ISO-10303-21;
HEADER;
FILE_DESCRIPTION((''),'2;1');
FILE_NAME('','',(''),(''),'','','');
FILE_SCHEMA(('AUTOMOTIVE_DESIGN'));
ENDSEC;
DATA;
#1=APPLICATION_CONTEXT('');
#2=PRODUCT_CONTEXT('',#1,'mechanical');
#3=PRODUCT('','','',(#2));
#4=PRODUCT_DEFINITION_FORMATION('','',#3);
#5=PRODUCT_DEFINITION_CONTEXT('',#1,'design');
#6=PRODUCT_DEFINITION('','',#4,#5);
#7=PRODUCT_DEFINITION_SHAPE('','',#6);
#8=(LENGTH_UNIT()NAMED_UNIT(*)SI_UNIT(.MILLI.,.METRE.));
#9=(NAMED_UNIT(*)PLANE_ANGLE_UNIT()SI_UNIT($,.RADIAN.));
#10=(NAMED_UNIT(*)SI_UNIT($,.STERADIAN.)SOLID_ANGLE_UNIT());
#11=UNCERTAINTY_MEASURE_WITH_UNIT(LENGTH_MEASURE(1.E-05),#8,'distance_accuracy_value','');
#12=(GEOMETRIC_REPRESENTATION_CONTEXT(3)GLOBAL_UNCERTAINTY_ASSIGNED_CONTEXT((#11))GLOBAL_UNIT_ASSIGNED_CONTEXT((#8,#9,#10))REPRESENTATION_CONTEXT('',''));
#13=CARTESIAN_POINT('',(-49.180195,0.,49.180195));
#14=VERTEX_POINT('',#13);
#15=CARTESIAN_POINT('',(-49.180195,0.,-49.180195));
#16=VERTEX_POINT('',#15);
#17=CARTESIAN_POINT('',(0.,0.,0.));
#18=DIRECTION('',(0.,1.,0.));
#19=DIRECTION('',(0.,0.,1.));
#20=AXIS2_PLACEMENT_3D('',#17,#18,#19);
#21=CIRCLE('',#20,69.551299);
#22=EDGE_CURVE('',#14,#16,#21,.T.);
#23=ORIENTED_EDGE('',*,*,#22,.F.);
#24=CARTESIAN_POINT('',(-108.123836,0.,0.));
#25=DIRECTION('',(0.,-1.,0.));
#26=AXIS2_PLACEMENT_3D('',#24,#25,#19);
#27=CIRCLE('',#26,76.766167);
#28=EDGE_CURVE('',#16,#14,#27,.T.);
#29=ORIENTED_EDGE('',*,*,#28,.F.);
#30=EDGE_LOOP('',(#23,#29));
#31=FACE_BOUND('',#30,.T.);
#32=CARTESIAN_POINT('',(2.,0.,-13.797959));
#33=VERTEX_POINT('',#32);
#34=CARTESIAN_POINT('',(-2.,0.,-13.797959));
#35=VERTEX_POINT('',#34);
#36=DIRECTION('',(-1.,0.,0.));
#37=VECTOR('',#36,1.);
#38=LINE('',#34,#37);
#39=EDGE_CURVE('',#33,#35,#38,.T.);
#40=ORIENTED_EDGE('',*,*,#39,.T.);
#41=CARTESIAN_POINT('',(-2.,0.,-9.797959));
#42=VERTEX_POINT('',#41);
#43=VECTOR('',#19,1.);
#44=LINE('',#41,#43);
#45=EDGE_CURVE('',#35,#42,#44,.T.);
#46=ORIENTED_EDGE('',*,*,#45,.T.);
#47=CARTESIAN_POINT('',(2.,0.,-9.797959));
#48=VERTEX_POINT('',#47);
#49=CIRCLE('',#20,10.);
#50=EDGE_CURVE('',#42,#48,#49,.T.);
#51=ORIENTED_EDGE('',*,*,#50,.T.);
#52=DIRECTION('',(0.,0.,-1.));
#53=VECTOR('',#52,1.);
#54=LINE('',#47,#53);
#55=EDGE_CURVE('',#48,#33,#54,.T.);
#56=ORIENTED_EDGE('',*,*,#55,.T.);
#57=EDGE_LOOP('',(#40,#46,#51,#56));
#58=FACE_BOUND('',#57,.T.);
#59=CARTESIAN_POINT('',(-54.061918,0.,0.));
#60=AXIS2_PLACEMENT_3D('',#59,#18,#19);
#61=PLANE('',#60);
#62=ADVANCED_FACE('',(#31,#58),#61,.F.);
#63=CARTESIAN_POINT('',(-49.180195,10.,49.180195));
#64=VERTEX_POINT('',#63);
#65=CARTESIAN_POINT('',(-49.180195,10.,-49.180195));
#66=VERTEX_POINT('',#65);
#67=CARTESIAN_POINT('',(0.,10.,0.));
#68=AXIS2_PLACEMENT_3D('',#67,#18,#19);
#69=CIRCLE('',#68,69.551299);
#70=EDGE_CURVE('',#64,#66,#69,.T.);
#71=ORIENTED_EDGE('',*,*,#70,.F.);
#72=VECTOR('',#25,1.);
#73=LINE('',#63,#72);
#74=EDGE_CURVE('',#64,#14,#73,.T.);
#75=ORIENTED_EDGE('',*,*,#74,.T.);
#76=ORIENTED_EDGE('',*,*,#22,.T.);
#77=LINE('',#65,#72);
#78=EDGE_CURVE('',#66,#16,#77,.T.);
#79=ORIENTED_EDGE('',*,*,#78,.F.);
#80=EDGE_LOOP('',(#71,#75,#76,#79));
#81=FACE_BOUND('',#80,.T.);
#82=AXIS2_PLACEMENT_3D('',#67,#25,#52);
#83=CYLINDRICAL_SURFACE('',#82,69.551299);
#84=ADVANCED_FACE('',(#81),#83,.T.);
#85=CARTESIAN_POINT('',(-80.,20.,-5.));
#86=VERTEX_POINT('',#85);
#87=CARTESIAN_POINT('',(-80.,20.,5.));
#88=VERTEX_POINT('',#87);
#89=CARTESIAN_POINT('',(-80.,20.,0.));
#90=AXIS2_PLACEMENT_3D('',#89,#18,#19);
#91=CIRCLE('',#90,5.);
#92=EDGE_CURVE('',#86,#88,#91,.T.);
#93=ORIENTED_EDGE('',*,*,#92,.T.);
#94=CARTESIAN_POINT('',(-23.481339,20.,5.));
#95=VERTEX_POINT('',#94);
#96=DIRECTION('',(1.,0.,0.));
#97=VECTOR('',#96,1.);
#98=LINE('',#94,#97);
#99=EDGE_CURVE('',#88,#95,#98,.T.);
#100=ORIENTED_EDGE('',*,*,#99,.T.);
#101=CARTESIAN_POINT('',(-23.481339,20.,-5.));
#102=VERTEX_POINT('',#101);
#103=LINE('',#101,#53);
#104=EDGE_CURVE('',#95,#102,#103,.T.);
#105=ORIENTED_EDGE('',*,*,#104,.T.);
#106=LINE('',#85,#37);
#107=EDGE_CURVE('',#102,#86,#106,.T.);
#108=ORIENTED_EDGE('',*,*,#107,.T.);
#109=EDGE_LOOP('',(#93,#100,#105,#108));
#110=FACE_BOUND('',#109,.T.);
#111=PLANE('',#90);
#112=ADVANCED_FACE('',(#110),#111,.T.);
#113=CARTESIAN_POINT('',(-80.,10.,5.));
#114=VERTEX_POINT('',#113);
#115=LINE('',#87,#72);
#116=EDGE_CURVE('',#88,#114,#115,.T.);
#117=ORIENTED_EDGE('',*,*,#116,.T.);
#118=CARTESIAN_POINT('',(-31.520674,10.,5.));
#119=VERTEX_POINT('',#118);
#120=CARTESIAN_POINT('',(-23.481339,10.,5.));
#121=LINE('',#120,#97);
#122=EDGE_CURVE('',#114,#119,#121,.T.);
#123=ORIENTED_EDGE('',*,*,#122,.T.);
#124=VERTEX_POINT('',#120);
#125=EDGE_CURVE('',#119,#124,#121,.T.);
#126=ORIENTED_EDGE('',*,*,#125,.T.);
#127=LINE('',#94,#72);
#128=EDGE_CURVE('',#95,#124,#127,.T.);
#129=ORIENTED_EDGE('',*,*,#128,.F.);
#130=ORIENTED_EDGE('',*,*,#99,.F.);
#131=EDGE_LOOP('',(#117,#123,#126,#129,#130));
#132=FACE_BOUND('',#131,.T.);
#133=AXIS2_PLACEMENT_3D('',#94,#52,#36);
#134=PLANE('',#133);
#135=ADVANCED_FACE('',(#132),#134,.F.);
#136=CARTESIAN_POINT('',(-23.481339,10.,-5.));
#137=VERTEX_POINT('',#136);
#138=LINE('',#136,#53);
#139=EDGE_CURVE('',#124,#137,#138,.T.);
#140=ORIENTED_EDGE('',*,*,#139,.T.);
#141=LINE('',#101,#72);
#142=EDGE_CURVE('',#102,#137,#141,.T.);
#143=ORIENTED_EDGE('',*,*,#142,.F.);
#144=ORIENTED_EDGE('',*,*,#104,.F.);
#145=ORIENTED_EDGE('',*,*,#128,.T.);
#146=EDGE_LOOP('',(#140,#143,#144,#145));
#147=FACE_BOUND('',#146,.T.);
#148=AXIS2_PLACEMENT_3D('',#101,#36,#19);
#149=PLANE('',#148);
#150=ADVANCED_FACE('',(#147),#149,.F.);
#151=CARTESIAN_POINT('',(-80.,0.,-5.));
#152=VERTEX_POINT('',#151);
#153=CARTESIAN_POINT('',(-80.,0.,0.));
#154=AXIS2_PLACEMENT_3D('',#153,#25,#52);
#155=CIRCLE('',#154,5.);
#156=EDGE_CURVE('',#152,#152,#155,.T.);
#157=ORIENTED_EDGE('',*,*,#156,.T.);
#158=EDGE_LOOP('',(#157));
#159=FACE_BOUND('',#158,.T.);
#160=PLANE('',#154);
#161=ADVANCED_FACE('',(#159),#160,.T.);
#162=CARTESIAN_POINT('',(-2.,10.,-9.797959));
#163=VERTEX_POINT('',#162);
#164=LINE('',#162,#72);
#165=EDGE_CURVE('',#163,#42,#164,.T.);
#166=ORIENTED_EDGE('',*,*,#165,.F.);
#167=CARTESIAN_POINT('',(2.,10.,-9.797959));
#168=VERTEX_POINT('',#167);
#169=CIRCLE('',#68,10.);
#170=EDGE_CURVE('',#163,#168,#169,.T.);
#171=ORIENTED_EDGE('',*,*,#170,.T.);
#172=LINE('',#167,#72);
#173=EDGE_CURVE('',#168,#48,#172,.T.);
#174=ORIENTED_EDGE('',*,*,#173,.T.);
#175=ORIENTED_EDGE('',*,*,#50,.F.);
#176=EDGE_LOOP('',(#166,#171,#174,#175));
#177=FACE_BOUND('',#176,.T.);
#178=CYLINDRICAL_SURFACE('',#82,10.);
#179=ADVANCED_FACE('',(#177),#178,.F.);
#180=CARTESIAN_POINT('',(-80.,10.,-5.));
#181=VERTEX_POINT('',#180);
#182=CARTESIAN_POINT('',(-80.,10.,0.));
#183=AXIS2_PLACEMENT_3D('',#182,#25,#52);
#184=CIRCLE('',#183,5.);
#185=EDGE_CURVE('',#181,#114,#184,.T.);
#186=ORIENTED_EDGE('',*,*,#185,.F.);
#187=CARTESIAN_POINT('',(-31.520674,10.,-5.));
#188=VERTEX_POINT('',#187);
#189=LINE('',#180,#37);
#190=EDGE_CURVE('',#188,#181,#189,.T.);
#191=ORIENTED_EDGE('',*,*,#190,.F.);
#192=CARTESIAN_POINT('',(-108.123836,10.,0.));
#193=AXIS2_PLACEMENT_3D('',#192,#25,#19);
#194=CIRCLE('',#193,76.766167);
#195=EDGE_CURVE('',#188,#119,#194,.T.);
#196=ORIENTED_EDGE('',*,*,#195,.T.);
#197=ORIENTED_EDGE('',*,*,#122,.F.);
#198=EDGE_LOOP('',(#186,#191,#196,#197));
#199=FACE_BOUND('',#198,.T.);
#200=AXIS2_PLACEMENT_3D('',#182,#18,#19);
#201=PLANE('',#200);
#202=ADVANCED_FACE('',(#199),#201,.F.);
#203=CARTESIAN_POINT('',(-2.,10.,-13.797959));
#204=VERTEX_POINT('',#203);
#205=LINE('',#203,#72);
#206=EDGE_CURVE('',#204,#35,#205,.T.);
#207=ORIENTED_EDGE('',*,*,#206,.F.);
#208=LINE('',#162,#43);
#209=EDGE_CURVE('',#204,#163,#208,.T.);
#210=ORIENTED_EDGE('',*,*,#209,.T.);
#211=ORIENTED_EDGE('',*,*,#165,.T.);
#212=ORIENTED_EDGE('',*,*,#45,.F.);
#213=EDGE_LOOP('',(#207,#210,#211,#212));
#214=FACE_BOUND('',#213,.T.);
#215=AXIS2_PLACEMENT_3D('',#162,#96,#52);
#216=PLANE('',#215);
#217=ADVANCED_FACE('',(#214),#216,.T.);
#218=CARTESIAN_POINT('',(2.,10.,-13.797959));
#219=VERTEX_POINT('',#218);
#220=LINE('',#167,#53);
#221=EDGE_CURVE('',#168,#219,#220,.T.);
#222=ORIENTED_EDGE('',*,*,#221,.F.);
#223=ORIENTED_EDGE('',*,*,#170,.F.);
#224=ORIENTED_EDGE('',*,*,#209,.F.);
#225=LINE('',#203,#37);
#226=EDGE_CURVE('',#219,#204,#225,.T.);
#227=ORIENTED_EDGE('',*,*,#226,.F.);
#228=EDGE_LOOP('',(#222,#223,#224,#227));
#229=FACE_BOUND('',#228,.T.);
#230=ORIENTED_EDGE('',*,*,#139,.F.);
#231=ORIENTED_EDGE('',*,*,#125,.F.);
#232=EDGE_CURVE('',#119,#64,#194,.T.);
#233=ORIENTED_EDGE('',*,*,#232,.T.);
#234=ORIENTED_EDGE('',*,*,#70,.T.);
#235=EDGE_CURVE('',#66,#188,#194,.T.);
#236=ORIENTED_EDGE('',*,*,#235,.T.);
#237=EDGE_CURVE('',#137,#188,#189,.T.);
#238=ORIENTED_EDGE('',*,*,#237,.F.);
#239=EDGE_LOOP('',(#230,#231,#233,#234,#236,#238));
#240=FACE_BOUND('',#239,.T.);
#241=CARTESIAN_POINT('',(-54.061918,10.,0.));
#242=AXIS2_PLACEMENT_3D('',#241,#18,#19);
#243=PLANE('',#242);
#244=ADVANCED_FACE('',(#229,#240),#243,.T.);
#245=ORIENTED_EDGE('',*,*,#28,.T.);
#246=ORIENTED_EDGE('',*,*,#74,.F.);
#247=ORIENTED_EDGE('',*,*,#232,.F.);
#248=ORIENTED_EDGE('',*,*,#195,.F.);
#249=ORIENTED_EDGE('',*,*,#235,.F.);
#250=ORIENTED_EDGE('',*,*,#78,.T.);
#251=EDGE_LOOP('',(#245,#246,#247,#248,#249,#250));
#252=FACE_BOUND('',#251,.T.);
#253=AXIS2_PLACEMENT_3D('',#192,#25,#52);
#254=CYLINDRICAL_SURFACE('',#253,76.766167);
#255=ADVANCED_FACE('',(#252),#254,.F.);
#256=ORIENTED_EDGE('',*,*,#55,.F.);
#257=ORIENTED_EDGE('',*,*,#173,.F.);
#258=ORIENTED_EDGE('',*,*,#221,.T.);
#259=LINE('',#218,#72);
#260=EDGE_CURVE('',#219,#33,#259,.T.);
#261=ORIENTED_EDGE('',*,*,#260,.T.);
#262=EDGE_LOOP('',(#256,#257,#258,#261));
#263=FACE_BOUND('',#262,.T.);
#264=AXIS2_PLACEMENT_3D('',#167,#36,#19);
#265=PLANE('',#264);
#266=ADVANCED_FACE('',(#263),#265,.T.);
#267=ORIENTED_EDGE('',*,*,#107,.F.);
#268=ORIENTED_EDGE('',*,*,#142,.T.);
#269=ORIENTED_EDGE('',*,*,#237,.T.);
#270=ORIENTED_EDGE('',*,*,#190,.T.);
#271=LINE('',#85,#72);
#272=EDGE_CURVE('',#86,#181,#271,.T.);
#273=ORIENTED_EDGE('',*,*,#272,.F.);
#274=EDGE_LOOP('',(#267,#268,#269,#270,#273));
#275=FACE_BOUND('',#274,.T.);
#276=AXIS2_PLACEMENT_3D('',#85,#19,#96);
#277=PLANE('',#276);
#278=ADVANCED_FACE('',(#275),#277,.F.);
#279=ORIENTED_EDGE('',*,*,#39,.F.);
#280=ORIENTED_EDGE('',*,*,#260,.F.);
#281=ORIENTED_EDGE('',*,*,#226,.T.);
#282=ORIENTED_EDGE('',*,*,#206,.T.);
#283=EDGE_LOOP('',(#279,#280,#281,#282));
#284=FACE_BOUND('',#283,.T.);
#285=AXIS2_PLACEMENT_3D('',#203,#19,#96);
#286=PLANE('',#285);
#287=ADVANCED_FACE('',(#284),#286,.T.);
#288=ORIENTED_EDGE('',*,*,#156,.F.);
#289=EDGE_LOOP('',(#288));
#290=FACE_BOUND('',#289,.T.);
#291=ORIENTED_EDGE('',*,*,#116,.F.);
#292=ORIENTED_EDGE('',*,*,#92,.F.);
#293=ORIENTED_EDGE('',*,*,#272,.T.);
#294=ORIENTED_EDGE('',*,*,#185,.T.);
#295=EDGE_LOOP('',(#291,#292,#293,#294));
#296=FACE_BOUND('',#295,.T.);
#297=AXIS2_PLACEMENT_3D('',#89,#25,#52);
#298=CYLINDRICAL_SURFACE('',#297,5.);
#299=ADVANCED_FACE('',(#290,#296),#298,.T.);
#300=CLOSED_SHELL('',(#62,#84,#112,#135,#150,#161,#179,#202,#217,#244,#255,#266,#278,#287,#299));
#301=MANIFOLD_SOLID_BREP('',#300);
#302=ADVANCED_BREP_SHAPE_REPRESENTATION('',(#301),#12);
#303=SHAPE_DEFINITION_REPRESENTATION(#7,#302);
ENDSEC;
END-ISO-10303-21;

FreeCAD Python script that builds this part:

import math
import FreeCAD as App
import Part
import Sketcher
from FreeCAD import Vector

doc = App.newDocument("Part")
body = doc.addObject("PartDesign::Body", "Body")

sketch1 = body.newObject("Sketcher::SketchObject", "Sketch")
sketch1.AttachmentSupport = (doc.getObject("XZ_Plane"), [""])
sketch1.MapMode = "FlatFace"
sketch1.addGeometry([
    Part.ArcOfCircle(Part.Circle(Vector(0, 0, 0), Vector(0, 0, 1), 69.6), math.radians(-135), math.radians(135)),
    Part.ArcOfCircle(Part.Circle(Vector(-108.1, 0, 0), Vector(0, 0, 1), 76.8), math.radians(-40), math.radians(40)),
    Part.ArcOfCircle(Part.Circle(Vector(0, 0, 0), Vector(0, 0, 1), 10), math.radians(-78), math.radians(258)),
    Part.LineSegment(Vector(-2, -9.8, 0), Vector(-2, -13.8, 0)),
    Part.LineSegment(Vector(-2, -13.8, 0), Vector(2, -13.8, 0)),
    Part.LineSegment(Vector(2, -13.8, 0), Vector(2, -9.8, 0)),
], False)
sketch1.addConstraint([
    Sketcher.Constraint("Coincident", 0, 1, 1, 1),
    Sketcher.Constraint("Coincident", 1, 2, 0, 2),
    Sketcher.Constraint("Coincident", 2, 2, 3, 1),
    Sketcher.Constraint("Coincident", 3, 2, 4, 1),
    Sketcher.Constraint("Coincident", 4, 2, 5, 1),
    Sketcher.Constraint("Coincident", 5, 2, 2, 1),
    Sketcher.Constraint("Vertical", 3),
    Sketcher.Constraint("Horizontal", 4),
    Sketcher.Constraint("Vertical", 5),
    Sketcher.Constraint("Coincident", 0, 3, -1, 1),
    Sketcher.Constraint("Coincident", 2, 3, -1, 1),
    Sketcher.Constraint("PointOnObject", 1, 3, -1),
    Sketcher.Constraint("Horizontal", 2, 2, 5, 2),
    Sketcher.Constraint("Equal", 4, 3),
    Sketcher.Constraint("Radius", 2, 10.0),
    Sketcher.Constraint("DistanceX", 4, 1, 4, 2, 4.0),
    Sketcher.Constraint("Radius", 0, 69.551299),
    Sketcher.Constraint("Radius", 1, 76.766167),
    Sketcher.Constraint("DistanceX", 1, 3, 0, 1, 58.943641),
])
pad1 = body.newObject("PartDesign::Pad", "Pad")
pad1.Profile = sketch1
pad1.Length = 10
pad1.Reversed = True

sketch2 = body.newObject("Sketcher::SketchObject", "Sketch001")
sketch2.AttachmentSupport = (doc.getObject("XZ_Plane"), [""])
sketch2.MapMode = "FlatFace"
sketch2.AttachmentOffset = App.Placement(Vector(0, 0, -10), App.Rotation())
sketch2.addGeometry([
    Part.LineSegment(Vector(-23, -5, 0), Vector(-80, -5, 0)),
    Part.ArcOfCircle(Part.Circle(Vector(-80, 0, 0), Vector(0, 0, 1), 5), math.radians(90), math.radians(270)),
    Part.LineSegment(Vector(-80, 5, 0), Vector(-23, 5, 0)),
    Part.LineSegment(Vector(-23, 5, 0), Vector(-23, -5, 0)),
], False)
sketch2.addConstraint([
    Sketcher.Constraint("Tangent", 0, 2, 1, 2),
    Sketcher.Constraint("Tangent", 1, 1, 2, 1),
    Sketcher.Constraint("Coincident", 2, 2, 3, 1),
    Sketcher.Constraint("Coincident", 3, 2, 0, 1),
    Sketcher.Constraint("Horizontal", 0),
    Sketcher.Constraint("Horizontal", 2),
    Sketcher.Constraint("Vertical", 3),
    Sketcher.Constraint("PointOnObject", 1, 3, -1),
    Sketcher.Constraint("Radius", 1, 5.0),
    Sketcher.Constraint("DistanceX", 1, 3, -1, 1, 80.0),
    Sketcher.Constraint("DistanceX", 0, 2, 0, 1, 56.518661),
])
pad2 = body.newObject("PartDesign::Pad", "Pad001")
pad2.Profile = sketch2
pad2.Length = 10
pad2.Reversed = True

sketch3 = body.newObject("Sketcher::SketchObject", "Sketch002")
sketch3.AttachmentSupport = (doc.getObject("XZ_Plane"), [""])
sketch3.MapMode = "FlatFace"
sketch3.addGeometry(Part.Circle(Vector(-80, 0, 0), Vector(0, 0, 1), 5), False)
sketch3.addConstraint([
    Sketcher.Constraint("PointOnObject", 0, 3, -1),
    Sketcher.Constraint("Diameter", 0, 10.0),
    Sketcher.Constraint("DistanceX", 0, 3, -1, 1, 80.0),
])
pad3 = body.newObject("PartDesign::Pad", "Pad002")
pad3.Profile = sketch3
pad3.Length = 10
pad3.Reversed = True

doc.recompute()
